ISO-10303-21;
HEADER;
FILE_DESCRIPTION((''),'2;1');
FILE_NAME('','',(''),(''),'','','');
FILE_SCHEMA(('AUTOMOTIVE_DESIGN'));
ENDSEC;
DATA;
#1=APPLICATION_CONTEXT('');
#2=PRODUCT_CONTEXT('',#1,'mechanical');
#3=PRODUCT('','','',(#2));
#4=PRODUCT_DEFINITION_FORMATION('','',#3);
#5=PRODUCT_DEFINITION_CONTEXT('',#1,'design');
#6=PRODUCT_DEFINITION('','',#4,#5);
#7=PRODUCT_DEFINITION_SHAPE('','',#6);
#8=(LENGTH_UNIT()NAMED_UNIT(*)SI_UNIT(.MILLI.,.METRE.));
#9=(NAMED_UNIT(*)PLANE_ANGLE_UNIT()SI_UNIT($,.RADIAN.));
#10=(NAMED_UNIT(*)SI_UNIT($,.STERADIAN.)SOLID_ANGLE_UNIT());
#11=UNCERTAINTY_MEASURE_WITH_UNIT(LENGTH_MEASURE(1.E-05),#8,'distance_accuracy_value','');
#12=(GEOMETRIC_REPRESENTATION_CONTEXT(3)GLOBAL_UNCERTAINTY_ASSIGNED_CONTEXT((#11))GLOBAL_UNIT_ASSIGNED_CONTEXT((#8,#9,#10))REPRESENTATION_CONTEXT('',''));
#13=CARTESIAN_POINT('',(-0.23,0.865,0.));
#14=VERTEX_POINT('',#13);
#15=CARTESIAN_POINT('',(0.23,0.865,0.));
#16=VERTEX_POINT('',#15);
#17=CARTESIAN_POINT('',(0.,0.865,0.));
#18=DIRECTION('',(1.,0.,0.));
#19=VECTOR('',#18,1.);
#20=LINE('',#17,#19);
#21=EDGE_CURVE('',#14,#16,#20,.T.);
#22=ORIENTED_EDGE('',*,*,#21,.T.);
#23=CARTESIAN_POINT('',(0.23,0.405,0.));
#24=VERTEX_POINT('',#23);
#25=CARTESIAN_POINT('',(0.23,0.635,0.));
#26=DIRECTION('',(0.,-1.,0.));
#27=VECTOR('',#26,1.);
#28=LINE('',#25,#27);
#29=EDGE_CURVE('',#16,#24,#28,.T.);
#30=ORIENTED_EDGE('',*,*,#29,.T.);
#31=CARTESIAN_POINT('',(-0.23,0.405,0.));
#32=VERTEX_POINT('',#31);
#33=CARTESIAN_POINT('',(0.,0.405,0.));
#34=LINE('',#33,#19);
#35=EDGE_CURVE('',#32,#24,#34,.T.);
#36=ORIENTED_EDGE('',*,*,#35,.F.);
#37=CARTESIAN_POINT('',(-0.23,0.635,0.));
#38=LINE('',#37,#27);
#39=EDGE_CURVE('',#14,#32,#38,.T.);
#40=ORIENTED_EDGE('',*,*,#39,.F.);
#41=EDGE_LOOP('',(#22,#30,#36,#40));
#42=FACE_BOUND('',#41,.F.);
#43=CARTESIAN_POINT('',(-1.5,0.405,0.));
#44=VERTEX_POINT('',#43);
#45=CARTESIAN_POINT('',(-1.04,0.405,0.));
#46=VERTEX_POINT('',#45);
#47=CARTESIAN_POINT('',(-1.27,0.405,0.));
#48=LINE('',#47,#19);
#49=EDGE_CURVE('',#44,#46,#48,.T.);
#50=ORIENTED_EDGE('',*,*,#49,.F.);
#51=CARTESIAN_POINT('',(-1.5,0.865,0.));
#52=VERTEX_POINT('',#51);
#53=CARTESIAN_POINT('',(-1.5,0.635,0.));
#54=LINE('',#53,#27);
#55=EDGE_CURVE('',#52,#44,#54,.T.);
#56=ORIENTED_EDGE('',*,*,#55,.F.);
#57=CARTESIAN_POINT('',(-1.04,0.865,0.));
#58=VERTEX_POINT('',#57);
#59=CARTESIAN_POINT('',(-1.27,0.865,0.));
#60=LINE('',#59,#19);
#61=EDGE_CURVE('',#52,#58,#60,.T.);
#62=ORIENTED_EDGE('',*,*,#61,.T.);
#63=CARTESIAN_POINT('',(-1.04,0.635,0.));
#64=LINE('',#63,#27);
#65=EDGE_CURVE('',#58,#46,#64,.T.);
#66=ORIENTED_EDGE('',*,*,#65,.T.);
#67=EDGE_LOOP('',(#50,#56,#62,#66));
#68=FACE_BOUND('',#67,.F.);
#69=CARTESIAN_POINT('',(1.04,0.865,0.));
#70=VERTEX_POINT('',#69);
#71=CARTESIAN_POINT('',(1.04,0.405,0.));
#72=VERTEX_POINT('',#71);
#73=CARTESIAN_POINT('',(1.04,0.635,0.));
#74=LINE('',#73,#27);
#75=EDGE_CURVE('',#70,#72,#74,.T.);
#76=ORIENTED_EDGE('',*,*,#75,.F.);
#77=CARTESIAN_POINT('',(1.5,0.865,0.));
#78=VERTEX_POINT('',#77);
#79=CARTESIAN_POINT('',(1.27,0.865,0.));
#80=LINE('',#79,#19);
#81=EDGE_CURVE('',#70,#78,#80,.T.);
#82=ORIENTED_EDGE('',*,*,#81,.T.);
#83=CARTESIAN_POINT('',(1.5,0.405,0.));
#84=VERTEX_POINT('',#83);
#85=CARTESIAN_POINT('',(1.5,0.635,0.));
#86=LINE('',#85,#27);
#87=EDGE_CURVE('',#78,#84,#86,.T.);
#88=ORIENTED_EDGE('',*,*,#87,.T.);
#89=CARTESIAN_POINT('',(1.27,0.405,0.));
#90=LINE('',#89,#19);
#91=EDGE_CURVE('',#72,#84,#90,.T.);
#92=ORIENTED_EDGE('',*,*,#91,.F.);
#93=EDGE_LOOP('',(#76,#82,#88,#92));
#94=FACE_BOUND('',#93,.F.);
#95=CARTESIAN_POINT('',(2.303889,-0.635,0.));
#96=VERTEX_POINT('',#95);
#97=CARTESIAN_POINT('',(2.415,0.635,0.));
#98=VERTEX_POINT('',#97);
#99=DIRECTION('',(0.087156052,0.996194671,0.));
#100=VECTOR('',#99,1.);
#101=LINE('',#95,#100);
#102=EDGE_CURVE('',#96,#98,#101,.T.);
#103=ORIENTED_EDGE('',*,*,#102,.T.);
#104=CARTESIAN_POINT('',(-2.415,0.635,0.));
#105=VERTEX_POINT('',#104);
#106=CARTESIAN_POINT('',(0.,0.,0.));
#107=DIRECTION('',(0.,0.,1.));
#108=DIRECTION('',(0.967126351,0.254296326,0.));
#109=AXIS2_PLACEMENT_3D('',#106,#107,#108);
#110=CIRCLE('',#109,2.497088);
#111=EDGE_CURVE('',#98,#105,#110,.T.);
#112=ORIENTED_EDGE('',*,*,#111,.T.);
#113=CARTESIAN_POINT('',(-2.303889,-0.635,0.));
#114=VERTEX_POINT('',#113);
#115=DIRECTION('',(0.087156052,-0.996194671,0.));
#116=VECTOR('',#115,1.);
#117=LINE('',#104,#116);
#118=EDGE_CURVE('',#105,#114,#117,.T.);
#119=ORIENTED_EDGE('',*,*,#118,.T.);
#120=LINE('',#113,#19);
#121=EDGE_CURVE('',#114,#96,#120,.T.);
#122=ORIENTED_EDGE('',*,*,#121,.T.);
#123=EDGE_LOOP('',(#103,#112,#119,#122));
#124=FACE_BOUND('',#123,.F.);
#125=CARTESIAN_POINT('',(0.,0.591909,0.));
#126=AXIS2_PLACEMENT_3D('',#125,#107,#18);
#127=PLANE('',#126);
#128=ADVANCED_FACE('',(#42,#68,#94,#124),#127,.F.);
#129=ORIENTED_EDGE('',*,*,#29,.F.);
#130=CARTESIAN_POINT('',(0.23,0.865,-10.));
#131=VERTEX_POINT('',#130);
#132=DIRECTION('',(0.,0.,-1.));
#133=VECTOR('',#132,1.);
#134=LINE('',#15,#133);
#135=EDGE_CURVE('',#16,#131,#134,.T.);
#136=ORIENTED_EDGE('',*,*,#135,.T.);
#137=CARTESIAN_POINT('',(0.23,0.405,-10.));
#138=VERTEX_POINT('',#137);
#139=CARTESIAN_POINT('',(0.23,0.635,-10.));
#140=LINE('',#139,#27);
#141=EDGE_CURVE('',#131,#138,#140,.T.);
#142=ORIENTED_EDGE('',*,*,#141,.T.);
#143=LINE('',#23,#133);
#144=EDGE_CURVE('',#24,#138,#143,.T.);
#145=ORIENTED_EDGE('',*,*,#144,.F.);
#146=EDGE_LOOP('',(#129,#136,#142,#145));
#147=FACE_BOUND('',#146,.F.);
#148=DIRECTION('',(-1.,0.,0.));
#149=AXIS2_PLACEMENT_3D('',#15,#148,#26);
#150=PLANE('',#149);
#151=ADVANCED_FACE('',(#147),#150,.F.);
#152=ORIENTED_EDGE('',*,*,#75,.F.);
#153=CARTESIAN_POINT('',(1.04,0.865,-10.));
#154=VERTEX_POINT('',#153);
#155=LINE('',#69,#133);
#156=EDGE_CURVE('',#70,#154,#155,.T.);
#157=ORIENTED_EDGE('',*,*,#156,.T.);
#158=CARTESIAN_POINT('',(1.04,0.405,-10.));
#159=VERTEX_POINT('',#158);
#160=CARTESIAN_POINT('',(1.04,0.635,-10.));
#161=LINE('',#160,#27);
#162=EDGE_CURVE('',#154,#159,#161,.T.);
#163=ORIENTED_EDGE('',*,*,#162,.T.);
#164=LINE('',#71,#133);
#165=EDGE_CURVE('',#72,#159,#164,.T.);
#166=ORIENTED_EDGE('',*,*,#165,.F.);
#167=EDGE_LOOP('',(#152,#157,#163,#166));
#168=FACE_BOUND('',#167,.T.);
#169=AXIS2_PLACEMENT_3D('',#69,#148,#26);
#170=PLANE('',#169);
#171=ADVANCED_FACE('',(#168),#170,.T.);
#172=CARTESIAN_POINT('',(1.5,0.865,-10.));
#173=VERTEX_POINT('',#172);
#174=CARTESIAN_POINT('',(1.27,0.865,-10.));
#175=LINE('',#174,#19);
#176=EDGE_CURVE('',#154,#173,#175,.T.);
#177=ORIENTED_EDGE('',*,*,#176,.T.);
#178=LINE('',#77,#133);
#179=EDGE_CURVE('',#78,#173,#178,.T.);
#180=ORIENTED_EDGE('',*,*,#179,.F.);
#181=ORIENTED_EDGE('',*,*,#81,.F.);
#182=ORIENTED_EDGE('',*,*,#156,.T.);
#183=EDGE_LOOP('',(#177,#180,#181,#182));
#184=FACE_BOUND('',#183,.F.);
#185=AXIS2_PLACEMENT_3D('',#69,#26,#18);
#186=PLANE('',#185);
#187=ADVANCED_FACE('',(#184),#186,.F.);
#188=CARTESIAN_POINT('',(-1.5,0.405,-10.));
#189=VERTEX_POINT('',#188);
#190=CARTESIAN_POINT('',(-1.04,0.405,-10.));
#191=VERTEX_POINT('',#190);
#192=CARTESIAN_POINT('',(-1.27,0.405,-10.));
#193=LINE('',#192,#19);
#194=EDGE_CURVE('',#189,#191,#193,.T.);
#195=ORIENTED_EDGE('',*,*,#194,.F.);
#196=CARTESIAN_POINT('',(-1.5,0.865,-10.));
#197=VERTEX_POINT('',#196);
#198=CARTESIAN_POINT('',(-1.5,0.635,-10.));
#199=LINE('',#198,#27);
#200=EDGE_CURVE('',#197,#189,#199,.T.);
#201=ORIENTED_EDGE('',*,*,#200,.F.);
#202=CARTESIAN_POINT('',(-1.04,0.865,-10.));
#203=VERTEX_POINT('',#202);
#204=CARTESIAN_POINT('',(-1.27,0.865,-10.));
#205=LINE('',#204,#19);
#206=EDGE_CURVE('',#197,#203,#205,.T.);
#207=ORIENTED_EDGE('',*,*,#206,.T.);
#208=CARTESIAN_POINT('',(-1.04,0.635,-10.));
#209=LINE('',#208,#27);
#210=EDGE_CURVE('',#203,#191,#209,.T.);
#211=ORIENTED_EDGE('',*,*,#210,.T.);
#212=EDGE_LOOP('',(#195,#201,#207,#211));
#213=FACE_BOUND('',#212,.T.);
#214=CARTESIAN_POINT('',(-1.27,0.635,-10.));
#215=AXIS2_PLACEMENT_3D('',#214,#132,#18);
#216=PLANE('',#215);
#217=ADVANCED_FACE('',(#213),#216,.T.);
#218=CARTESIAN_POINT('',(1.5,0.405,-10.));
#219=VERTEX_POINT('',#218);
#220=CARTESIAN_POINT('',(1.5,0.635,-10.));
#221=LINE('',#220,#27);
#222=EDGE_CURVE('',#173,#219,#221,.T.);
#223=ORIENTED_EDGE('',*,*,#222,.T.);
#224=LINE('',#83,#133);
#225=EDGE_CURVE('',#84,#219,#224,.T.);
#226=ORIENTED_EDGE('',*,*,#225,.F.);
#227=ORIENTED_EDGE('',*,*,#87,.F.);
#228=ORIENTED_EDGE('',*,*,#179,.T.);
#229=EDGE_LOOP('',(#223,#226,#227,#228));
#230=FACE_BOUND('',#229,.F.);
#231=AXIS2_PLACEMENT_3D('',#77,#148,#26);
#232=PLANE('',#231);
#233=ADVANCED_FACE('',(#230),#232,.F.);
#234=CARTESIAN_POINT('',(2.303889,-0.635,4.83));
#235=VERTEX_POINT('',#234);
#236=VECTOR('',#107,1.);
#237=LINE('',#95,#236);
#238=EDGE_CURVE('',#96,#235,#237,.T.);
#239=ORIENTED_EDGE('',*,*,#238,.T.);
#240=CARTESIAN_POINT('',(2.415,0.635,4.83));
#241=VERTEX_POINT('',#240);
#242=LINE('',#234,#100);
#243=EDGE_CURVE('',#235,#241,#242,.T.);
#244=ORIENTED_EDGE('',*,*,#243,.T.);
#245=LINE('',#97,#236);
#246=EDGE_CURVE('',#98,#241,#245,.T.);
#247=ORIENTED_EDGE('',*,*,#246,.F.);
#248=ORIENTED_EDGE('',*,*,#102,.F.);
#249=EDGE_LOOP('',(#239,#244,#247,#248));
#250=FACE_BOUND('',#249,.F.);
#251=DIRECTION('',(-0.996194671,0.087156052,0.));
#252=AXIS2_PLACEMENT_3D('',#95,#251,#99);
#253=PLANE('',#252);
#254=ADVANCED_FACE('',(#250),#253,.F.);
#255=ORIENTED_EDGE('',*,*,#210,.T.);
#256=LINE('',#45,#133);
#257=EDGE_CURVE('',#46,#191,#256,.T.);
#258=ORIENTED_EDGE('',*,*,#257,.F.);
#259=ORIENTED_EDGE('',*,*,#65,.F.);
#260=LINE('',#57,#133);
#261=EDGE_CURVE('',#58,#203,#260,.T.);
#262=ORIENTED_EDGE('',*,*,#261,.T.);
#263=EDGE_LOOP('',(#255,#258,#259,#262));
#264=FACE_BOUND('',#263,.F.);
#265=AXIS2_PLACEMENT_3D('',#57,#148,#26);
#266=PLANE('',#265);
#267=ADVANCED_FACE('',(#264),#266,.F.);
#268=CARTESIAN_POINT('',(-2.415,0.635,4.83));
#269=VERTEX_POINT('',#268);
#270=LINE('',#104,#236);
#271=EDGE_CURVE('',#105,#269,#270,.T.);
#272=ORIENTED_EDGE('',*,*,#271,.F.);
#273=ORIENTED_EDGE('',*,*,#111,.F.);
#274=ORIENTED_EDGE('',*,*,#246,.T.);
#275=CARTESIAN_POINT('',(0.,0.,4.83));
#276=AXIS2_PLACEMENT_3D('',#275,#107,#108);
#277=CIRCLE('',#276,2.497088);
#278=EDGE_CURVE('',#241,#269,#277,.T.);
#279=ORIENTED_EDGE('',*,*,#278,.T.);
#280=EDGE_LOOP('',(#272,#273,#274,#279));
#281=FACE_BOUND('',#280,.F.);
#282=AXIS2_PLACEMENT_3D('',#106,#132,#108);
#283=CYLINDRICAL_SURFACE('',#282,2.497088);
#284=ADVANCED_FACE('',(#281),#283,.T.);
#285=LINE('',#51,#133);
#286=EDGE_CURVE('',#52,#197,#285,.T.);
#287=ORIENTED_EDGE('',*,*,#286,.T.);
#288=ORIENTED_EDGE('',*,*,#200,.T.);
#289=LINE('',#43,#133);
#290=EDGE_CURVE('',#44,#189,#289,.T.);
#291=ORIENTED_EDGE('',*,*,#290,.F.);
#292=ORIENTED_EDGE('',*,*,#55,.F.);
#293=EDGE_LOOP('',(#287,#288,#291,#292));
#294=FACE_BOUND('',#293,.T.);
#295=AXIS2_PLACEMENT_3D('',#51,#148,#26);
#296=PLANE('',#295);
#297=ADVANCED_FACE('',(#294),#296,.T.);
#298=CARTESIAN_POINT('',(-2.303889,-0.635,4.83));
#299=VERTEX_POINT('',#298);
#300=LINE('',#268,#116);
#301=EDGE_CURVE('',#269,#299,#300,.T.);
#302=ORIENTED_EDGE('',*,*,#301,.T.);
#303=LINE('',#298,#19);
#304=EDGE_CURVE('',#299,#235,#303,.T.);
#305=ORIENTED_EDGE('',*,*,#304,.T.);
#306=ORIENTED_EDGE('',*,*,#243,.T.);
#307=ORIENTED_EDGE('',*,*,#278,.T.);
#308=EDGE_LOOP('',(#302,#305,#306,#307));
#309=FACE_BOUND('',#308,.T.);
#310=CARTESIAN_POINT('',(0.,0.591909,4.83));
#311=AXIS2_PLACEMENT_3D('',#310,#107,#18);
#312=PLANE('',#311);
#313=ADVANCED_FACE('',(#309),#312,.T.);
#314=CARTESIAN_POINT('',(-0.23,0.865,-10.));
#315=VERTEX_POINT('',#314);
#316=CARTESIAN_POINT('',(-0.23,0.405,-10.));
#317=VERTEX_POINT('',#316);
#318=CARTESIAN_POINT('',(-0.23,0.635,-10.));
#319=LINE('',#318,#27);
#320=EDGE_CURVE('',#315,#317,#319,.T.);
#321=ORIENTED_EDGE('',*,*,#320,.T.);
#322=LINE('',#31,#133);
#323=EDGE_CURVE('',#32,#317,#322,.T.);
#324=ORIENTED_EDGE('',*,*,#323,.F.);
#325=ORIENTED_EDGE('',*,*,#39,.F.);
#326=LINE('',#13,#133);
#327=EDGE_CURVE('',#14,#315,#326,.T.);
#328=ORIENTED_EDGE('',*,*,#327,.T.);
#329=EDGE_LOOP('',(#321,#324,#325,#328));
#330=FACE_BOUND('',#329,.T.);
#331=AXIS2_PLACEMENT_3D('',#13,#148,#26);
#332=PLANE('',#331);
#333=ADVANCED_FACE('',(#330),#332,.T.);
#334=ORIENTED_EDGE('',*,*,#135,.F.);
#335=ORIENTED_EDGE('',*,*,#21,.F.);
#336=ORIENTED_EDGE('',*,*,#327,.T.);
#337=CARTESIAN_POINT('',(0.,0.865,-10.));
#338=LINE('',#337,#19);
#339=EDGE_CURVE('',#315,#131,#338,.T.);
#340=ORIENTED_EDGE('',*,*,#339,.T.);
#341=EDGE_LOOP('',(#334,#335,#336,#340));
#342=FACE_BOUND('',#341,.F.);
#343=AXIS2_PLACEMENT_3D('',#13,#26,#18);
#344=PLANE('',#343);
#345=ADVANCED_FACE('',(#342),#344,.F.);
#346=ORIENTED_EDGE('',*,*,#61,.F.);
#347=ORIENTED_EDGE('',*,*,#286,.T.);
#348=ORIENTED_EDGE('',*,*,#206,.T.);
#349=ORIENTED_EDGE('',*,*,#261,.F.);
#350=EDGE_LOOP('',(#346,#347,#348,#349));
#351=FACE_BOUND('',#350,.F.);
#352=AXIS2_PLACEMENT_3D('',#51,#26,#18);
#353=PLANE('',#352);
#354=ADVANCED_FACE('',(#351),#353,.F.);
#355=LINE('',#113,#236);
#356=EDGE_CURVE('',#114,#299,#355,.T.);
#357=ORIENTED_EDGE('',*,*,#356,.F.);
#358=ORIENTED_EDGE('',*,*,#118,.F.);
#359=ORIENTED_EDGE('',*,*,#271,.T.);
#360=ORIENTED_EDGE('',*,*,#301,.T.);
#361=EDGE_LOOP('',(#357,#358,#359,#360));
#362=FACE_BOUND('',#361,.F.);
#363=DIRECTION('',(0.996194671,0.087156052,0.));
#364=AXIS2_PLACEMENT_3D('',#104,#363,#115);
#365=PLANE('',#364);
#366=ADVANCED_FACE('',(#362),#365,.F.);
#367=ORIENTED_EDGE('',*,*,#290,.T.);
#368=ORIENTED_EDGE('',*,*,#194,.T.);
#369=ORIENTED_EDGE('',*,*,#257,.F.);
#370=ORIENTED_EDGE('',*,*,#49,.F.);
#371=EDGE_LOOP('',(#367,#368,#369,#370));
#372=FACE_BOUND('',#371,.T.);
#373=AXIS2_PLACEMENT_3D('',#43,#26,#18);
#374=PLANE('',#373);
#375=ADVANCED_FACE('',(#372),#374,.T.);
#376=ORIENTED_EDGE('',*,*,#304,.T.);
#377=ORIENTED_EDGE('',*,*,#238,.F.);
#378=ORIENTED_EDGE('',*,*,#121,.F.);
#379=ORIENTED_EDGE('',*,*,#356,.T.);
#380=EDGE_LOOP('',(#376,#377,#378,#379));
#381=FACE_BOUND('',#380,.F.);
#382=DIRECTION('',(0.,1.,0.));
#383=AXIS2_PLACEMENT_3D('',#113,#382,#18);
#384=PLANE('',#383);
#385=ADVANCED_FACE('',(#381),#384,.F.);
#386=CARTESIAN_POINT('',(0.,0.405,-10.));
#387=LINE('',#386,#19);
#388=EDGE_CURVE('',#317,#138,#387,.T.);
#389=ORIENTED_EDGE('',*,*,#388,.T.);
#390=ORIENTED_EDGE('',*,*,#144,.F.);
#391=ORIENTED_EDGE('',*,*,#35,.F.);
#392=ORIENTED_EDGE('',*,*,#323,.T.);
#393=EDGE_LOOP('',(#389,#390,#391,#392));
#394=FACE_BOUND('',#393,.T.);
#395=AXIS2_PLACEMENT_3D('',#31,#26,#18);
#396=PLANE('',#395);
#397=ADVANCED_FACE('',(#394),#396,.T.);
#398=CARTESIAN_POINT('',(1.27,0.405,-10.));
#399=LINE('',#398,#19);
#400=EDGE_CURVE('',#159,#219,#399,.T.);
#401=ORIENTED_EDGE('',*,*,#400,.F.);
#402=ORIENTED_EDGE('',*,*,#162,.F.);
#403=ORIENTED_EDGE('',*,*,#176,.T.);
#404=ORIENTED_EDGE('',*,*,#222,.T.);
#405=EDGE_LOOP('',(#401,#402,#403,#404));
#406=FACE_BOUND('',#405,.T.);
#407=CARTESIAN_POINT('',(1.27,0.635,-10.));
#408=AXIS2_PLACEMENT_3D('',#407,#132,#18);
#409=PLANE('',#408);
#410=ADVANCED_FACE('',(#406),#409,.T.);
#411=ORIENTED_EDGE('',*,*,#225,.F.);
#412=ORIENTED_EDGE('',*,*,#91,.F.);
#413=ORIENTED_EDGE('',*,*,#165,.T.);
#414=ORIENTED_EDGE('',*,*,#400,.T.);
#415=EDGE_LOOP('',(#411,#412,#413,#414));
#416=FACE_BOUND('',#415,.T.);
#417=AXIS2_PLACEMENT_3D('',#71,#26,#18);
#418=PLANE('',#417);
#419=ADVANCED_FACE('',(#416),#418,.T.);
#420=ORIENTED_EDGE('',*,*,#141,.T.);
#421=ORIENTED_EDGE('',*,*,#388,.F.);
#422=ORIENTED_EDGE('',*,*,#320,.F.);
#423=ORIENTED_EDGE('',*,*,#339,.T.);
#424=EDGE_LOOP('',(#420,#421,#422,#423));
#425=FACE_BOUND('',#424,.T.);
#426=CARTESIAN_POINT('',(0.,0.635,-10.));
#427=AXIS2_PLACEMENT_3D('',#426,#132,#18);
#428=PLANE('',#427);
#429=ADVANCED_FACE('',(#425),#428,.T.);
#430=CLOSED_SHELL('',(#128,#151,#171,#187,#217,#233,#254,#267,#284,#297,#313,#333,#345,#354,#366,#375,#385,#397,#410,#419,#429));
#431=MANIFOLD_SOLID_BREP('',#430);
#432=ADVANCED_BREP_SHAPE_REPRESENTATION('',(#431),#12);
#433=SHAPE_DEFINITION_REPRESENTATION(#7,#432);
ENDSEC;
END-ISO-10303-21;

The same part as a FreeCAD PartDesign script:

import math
import FreeCAD as App
import Part
import Sketcher
Q = App.Units.Quantity

doc = App.newDocument("Part")
body = doc.addObject("PartDesign::Body", "Body")

# Sketch on XY plane
sketch1 = doc.addObject("Sketcher::SketchObject", "Sketch")
body.addObject(sketch1)
sketch1.AttachmentSupport = (doc.XY_Plane, [""])
sketch1.MapMode = "FlatFace"
sketch1.addGeometry([
    Part.ArcOfCircle(Part.Circle(App.Vector(0, 0, 0), App.Vector(0, 0, 1), 2.5), math.radians(15), math.radians(165)),
    Part.LineSegment(App.Vector(-2.4, 0.6, 0), App.Vector(-2.3, -0.6, 0)),
    Part.LineSegment(App.Vector(-2.3, -0.6, 0), App.Vector(2.3, -0.6, 0)),
    Part.LineSegment(App.Vector(2.3, -0.6, 0), App.Vector(2.4, 0.6, 0)),
], False)
sketch1.addConstraint([
    Sketcher.Constraint("Coincident", 0, 2, 1, 1),
    Sketcher.Constraint("Coincident", 1, 2, 2, 1),
    Sketcher.Constraint("Coincident", 2, 2, 3, 1),
    Sketcher.Constraint("Coincident", 3, 2, 0, 1),
    Sketcher.Constraint("Horizontal", 2),
    Sketcher.Constraint("Coincident", 0, 3, -1, 1),
    Sketcher.Constraint("Horizontal", 0, 2, 3, 2),
    Sketcher.Constraint("Equal", 1, 3),
    Sketcher.Constraint("Angle", 1, Q("-84.999982 deg")),
    Sketcher.Constraint("Radius", 0, Q("2.497088 mm")),
    Sketcher.Constraint("DistanceY", 1, 2, 0, 2, Q("1.27 mm")),
    Sketcher.Constraint("DistanceX", 0, 2, 3, 2, Q("4.83 mm")),
])
pad1 = doc.addObject("PartDesign::Pad", "Pad")
body.addObject(pad1)
pad1.Profile = sketch1
pad1.Length = 4.83

# Sketch on XY plane
sketch2 = doc.addObject("Sketcher::SketchObject", "Sketch001")
body.addObject(sketch2)
sketch2.AttachmentSupport = (doc.XY_Plane, [""])
sketch2.MapMode = "FlatFace"
sketch2.addGeometry([
    Part.LineSegment(App.Vector(-0.23, 0.41, 0), App.Vector(-0.23, 0.86, 0)),  # 0
    Part.LineSegment(App.Vector(-0.23, 0.86, 0), App.Vector(0.23, 0.86, 0)),  # 1
    Part.LineSegment(App.Vector(0.23, 0.86, 0), App.Vector(0.23, 0.41, 0)),  # 2
    Part.LineSegment(App.Vector(0.23, 0.41, 0), App.Vector(-0.23, 0.41, 0)),  # 3
    Part.LineSegment(App.Vector(1.04, 0.41, 0), App.Vector(1.04, 0.86, 0)),  # 4
    Part.LineSegment(App.Vector(1.04, 0.86, 0), App.Vector(1.5, 0.86, 0)),  # 5
    Part.LineSegment(App.Vector(1.5, 0.86, 0), App.Vector(1.5, 0.41, 0)),  # 6
    Part.LineSegment(App.Vector(1.5, 0.41, 0), App.Vector(1.04, 0.41, 0)),  # 7
    Part.LineSegment(App.Vector(-1.5, 0.41, 0), App.Vector(-1.5, 0.86, 0)),  # 8
    Part.LineSegment(App.Vector(-1.5, 0.86, 0), App.Vector(-1.04, 0.86, 0)),  # 9
    Part.LineSegment(App.Vector(-1.04, 0.86, 0), App.Vector(-1.04, 0.41, 0)),  # 10
    Part.LineSegment(App.Vector(-1.04, 0.41, 0), App.Vector(-1.5, 0.41, 0)),  # 11
], False)
sketch2.addConstraint([
    Sketcher.Constraint("Coincident", 0, 2, 1, 1),
    Sketcher.Constraint("Coincident", 1, 2, 2, 1),
    Sketcher.Constraint("Coincident", 2, 2, 3, 1),
    Sketcher.Constraint("Coincident", 3, 2, 0, 1),
    Sketcher.Constraint("Coincident", 4, 2, 5, 1),
    Sketcher.Constraint("Coincident", 5, 2, 6, 1),
    Sketcher.Constraint("Coincident", 6, 2, 7, 1),
    Sketcher.Constraint("Coincident", 7, 2, 4, 1),
    Sketcher.Constraint("Coincident", 8, 2, 9, 1),
    Sketcher.Constraint("Coincident", 9, 2, 10, 1),
    Sketcher.Constraint("Coincident", 10, 2, 11, 1),
    Sketcher.Constraint("Coincident", 11, 2, 8, 1),
    Sketcher.Constraint("Vertical", 0),
    Sketcher.Constraint("Horizontal", 1),
    Sketcher.Constraint("Vertical", 2),
    Sketcher.Constraint("Horizontal", 3),
    Sketcher.Constraint("Vertical", 4),
    Sketcher.Constraint("Horizontal", 5),
    Sketcher.Constraint("Vertical", 6),
    Sketcher.Constraint("Horizontal", 7),
    Sketcher.Constraint("Vertical", 8),
    Sketcher.Constraint("Horizontal", 9),
    Sketcher.Constraint("Vertical", 10),
    Sketcher.Constraint("Horizontal", 11),
    Sketcher.Constraint("Symmetric", 5, 2, 8, 2, -2),
    Sketcher.Constraint("Symmetric", 7, 2, 10, 2, -2),
    Sketcher.Constraint("Horizontal", 1, 2, 4, 2),
    Sketcher.Constraint("Horizontal", 3, 2, 6, 2),
    Sketcher.Constraint("Equal", 3, 5),
    Sketcher.Constraint("Equal", 11, 0),
    Sketcher.Constraint("DistanceX", 1, 1, 1, 2, Q("0.46 mm")),
    Sketcher.Constraint("DistanceX", -1, 1, 5, 2, Q("1.5 mm")),
    Sketcher.Constraint("DistanceX", 0, 2, -1, 1, Q("0.23 mm")),
    Sketcher.Constraint("DistanceY", -1, 1, 0, 2, Q("0.865 mm")),
])
pad2 = doc.addObject("PartDesign::Pad", "Pad001")
body.addObject(pad2)
pad2.Profile = sketch2
pad2.Length = 10
pad2.Reversed = True

doc.recompute()
